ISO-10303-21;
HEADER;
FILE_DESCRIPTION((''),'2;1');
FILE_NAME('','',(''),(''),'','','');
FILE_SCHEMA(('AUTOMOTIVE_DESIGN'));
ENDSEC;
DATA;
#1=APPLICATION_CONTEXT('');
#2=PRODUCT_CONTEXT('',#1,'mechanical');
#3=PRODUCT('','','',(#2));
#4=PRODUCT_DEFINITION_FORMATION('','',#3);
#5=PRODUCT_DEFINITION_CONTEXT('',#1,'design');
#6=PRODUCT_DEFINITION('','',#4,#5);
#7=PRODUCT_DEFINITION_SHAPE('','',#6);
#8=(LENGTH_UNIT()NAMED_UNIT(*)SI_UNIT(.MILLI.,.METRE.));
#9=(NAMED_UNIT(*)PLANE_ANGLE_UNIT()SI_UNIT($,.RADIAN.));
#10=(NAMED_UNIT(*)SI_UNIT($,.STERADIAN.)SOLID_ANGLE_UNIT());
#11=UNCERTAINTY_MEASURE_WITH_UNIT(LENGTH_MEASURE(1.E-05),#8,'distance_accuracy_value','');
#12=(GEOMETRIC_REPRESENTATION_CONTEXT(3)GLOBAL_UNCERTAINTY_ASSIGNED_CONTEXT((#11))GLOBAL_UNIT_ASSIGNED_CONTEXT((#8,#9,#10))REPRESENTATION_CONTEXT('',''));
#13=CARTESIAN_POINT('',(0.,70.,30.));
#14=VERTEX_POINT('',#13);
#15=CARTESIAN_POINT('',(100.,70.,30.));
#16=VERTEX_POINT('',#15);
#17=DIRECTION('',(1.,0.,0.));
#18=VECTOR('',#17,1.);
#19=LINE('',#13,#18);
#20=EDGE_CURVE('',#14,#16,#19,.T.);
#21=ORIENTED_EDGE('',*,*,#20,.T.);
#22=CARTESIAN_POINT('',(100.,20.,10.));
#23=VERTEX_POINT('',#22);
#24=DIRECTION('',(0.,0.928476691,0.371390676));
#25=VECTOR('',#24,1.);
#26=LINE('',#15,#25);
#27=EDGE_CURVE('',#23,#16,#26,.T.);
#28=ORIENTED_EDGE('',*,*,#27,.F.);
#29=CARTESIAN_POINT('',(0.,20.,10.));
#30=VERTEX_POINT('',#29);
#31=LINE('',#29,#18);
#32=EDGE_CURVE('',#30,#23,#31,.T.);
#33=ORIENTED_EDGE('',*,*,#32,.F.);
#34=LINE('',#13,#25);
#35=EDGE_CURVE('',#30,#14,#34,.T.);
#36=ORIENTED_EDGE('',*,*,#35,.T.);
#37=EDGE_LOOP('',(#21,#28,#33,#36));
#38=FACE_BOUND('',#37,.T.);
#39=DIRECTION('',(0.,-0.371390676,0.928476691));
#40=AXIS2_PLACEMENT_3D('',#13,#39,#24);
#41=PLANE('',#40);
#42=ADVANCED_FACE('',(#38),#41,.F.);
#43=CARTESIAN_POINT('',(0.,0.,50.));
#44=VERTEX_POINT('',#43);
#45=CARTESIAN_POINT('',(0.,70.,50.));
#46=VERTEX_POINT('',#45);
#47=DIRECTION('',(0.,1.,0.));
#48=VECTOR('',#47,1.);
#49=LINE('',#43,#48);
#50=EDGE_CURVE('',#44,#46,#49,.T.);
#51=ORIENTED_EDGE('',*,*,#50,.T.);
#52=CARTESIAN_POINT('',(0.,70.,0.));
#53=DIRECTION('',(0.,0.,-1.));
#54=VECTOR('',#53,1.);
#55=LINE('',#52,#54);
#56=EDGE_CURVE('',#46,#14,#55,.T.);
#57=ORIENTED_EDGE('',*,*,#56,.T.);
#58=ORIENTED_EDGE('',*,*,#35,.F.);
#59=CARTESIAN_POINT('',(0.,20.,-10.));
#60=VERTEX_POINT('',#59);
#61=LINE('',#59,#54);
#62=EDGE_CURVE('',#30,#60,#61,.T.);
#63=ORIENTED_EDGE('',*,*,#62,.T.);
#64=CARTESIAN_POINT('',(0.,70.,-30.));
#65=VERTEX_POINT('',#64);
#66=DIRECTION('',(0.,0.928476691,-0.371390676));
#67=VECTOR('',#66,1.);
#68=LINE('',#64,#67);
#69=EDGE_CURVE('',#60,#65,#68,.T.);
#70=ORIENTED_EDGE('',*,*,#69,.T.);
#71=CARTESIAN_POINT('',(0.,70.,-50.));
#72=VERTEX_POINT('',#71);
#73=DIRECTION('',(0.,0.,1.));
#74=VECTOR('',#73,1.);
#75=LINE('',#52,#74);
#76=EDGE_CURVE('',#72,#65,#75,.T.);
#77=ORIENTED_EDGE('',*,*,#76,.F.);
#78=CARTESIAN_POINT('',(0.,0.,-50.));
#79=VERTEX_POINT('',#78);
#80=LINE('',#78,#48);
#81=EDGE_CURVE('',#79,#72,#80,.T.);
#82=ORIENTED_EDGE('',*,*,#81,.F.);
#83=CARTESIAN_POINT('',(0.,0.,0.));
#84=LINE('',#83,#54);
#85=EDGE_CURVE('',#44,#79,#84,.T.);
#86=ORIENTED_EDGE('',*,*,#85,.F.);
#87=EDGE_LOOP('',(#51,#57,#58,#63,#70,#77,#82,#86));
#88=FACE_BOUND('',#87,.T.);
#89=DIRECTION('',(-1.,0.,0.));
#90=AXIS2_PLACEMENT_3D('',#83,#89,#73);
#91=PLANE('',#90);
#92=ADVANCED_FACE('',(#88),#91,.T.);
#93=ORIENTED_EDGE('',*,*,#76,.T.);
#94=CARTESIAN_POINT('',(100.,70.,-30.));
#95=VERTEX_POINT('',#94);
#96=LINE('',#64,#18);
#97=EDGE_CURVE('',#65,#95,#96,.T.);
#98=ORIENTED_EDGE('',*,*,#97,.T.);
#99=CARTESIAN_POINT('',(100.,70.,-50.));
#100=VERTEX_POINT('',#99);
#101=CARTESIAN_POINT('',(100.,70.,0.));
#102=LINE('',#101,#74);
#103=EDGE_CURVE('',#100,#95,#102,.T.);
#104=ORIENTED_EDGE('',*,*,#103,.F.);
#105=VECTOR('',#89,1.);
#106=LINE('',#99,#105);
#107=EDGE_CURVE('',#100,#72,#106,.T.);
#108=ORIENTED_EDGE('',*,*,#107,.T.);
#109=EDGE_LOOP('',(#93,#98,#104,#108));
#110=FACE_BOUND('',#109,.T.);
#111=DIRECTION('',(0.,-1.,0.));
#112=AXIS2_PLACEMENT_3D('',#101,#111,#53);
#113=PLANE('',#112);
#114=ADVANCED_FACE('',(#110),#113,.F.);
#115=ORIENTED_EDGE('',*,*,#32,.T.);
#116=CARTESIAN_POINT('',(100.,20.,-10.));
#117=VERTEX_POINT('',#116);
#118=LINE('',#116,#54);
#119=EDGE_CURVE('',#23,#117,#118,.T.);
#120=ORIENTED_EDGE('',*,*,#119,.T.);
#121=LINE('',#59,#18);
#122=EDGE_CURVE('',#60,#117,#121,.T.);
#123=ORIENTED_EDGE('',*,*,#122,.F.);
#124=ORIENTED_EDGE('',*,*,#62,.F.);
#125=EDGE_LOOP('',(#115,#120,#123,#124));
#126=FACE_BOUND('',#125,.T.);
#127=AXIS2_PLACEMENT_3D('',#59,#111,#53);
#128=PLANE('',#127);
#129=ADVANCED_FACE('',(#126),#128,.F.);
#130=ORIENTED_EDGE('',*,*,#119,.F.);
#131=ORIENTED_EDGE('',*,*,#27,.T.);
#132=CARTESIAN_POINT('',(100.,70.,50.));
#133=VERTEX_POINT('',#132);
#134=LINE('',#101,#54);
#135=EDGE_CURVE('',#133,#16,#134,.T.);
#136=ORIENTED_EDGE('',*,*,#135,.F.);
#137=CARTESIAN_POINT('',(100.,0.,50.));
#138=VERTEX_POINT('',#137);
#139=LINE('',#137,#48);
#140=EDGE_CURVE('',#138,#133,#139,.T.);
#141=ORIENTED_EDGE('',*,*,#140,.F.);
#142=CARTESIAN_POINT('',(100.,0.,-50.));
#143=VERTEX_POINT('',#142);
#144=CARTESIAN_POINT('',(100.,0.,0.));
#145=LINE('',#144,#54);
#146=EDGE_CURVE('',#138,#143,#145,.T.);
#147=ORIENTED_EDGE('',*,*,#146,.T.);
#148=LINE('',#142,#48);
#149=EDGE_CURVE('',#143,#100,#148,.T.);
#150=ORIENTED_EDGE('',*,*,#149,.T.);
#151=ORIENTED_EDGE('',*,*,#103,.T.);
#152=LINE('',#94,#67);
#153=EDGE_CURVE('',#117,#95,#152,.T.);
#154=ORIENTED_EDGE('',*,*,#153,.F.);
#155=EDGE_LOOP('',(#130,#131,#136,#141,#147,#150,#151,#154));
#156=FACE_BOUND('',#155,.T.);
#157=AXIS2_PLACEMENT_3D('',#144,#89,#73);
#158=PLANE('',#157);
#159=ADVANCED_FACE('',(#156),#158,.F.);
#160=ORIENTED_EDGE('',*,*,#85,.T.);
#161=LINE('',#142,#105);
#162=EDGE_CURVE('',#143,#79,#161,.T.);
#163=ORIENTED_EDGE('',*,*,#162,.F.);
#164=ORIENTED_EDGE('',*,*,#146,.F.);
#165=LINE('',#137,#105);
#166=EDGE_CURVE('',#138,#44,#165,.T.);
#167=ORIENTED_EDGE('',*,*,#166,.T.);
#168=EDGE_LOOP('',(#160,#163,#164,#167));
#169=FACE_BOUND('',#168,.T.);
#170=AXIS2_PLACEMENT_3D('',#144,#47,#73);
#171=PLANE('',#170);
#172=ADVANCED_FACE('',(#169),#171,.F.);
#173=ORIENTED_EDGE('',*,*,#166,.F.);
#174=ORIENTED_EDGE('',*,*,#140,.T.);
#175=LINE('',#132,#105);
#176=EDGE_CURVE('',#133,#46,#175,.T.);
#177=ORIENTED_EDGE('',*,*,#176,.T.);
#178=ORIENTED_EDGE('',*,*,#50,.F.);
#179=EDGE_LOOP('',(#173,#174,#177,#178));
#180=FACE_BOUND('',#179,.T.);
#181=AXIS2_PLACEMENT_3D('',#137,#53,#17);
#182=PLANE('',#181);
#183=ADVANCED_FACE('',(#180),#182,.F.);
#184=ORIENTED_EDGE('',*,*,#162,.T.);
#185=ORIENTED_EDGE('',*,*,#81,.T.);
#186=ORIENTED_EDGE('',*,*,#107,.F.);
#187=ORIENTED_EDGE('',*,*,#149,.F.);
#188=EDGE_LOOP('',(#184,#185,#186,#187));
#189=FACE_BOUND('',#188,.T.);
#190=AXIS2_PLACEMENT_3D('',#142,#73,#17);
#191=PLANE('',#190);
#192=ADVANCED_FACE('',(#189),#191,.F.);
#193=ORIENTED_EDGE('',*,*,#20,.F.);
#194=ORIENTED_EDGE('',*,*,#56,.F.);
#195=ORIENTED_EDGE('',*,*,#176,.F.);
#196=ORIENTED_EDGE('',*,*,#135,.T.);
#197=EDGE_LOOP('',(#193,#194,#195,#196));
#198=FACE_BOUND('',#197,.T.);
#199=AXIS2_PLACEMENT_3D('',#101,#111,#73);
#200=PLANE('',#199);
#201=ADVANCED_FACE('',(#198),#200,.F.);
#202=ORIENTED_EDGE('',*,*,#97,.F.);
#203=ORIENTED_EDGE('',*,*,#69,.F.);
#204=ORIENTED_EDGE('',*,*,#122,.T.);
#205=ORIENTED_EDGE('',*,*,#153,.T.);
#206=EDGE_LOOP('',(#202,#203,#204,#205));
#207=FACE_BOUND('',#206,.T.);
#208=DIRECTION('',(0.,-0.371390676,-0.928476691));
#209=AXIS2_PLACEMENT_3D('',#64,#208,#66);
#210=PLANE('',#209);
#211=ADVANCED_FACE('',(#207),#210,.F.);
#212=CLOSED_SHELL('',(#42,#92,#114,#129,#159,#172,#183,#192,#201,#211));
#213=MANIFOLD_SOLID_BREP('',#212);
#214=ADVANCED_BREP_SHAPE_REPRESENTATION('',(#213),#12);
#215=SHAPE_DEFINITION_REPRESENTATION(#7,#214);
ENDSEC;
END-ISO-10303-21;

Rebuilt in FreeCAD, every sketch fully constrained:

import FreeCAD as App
import Part
import Sketcher

V = App.Vector

doc = App.newDocument("Part")
body = doc.addObject("PartDesign::Body", "Body")

# Sketch on YZ plane
sketch1 = doc.addObject("Sketcher::SketchObject", "Sketch")
body.addObject(sketch1)
sketch1.AttachmentSupport = (doc.YZ_Plane, [""])
sketch1.MapMode = "FlatFace"
sketch1.addGeometry([
    Part.LineSegment(V(70, 0, 0), V(0, 0, 0)),
    Part.LineSegment(V(0, 0, 0), V(0, -50, 0)),
    Part.LineSegment(V(0, -50, 0), V(70, -50, 0)),
    Part.LineSegment(V(70, -50, 0), V(70, 0, 0)),
], False)
sketch1.addConstraint([
    Sketcher.Constraint("Coincident", 0, 2, 1, 1),
    Sketcher.Constraint("Coincident", 1, 2, 2, 1),
    Sketcher.Constraint("Coincident", 2, 2, 3, 1),
    Sketcher.Constraint("Coincident", 3, 2, 0, 1),
    Sketcher.Constraint("Horizontal", 0),
    Sketcher.Constraint("Vertical", 1),
    Sketcher.Constraint("Horizontal", 2),
    Sketcher.Constraint("Vertical", 3),
    Sketcher.Constraint("Coincident", 0, 2, -1, 1),
    Sketcher.Constraint("DistanceX", 0, 2, 0, 1, 70.0),
    Sketcher.Constraint("DistanceY", 1, 2, 1, 1, 50.0),
])
pad1 = doc.addObject("PartDesign::Pad", "Pad")
body.addObject(pad1)
pad1.Profile = sketch1
pad1.Length = 100

# Sketch on YZ plane
sketch2 = doc.addObject("Sketcher::SketchObject", "Sketch001")
body.addObject(sketch2)
sketch2.AttachmentSupport = (doc.YZ_Plane, [""])
sketch2.MapMode = "FlatFace"
sketch2.AttachmentOffset = App.Placement(V(0, 0, 100), App.Rotation())
sketch2.addGeometry([
    Part.LineSegment(V(70, -30, 0), V(70, 0, 0)),
    Part.LineSegment(V(70, 0, 0), V(20, 0, 0)),
    Part.LineSegment(V(20, 0, 0), V(20, -10, 0)),
    Part.LineSegment(V(20, -10, 0), V(70, -30, 0)),
], False)
sketch2.addConstraint([
    Sketcher.Constraint("Coincident", 0, 2, 1, 1),
    Sketcher.Constraint("Coincident", 1, 2, 2, 1),
    Sketcher.Constraint("Coincident", 2, 2, 3, 1),
    Sketcher.Constraint("Coincident", 3, 2, 0, 1),
    Sketcher.Constraint("Vertical", 0),
    Sketcher.Constraint("Horizontal", 1),
    Sketcher.Constraint("Vertical", 2),
    Sketcher.Constraint("PointOnObject", 0, 2, -1),
    Sketcher.Constraint("DistanceX", 1, 2, 1, 1, 50.0),
    Sketcher.Constraint("DistanceY", 0, 1, 0, 2, 30.0),
    Sketcher.Constraint("DistanceY", 2, 2, 2, 1, 10.0),
    Sketcher.Constraint("DistanceX", -1, 1, 0, 2, 70.0),
])
pocket1 = doc.addObject("PartDesign::Pocket", "Pocket")
body.addObject(pocket1)
pocket1.Profile = sketch2
pocket1.Length = 100
body2 = doc.addObject("PartDesign::Body", "Body001")
doc.recompute()

body2.BaseFeature = body
doc.recompute()

mirroring = doc.addObject("Part::Mirroring", "Mirroring")
mirroring.Source = body
mirroring.Base = V(0, 0, 0)
mirroring.Normal = V(0, 0, 1)
body3 = doc.addObject("PartDesign::Body", "Body002")
body3.BaseFeature = mirroring
boolean = doc.addObject("PartDesign::Boolean", "Boolean")
body2.addObject(boolean)
boolean.Type = "Fuse"
boolean.addObjects([body3])
doc.recompute()
mirroring.Visibility = False

doc.recompute()
